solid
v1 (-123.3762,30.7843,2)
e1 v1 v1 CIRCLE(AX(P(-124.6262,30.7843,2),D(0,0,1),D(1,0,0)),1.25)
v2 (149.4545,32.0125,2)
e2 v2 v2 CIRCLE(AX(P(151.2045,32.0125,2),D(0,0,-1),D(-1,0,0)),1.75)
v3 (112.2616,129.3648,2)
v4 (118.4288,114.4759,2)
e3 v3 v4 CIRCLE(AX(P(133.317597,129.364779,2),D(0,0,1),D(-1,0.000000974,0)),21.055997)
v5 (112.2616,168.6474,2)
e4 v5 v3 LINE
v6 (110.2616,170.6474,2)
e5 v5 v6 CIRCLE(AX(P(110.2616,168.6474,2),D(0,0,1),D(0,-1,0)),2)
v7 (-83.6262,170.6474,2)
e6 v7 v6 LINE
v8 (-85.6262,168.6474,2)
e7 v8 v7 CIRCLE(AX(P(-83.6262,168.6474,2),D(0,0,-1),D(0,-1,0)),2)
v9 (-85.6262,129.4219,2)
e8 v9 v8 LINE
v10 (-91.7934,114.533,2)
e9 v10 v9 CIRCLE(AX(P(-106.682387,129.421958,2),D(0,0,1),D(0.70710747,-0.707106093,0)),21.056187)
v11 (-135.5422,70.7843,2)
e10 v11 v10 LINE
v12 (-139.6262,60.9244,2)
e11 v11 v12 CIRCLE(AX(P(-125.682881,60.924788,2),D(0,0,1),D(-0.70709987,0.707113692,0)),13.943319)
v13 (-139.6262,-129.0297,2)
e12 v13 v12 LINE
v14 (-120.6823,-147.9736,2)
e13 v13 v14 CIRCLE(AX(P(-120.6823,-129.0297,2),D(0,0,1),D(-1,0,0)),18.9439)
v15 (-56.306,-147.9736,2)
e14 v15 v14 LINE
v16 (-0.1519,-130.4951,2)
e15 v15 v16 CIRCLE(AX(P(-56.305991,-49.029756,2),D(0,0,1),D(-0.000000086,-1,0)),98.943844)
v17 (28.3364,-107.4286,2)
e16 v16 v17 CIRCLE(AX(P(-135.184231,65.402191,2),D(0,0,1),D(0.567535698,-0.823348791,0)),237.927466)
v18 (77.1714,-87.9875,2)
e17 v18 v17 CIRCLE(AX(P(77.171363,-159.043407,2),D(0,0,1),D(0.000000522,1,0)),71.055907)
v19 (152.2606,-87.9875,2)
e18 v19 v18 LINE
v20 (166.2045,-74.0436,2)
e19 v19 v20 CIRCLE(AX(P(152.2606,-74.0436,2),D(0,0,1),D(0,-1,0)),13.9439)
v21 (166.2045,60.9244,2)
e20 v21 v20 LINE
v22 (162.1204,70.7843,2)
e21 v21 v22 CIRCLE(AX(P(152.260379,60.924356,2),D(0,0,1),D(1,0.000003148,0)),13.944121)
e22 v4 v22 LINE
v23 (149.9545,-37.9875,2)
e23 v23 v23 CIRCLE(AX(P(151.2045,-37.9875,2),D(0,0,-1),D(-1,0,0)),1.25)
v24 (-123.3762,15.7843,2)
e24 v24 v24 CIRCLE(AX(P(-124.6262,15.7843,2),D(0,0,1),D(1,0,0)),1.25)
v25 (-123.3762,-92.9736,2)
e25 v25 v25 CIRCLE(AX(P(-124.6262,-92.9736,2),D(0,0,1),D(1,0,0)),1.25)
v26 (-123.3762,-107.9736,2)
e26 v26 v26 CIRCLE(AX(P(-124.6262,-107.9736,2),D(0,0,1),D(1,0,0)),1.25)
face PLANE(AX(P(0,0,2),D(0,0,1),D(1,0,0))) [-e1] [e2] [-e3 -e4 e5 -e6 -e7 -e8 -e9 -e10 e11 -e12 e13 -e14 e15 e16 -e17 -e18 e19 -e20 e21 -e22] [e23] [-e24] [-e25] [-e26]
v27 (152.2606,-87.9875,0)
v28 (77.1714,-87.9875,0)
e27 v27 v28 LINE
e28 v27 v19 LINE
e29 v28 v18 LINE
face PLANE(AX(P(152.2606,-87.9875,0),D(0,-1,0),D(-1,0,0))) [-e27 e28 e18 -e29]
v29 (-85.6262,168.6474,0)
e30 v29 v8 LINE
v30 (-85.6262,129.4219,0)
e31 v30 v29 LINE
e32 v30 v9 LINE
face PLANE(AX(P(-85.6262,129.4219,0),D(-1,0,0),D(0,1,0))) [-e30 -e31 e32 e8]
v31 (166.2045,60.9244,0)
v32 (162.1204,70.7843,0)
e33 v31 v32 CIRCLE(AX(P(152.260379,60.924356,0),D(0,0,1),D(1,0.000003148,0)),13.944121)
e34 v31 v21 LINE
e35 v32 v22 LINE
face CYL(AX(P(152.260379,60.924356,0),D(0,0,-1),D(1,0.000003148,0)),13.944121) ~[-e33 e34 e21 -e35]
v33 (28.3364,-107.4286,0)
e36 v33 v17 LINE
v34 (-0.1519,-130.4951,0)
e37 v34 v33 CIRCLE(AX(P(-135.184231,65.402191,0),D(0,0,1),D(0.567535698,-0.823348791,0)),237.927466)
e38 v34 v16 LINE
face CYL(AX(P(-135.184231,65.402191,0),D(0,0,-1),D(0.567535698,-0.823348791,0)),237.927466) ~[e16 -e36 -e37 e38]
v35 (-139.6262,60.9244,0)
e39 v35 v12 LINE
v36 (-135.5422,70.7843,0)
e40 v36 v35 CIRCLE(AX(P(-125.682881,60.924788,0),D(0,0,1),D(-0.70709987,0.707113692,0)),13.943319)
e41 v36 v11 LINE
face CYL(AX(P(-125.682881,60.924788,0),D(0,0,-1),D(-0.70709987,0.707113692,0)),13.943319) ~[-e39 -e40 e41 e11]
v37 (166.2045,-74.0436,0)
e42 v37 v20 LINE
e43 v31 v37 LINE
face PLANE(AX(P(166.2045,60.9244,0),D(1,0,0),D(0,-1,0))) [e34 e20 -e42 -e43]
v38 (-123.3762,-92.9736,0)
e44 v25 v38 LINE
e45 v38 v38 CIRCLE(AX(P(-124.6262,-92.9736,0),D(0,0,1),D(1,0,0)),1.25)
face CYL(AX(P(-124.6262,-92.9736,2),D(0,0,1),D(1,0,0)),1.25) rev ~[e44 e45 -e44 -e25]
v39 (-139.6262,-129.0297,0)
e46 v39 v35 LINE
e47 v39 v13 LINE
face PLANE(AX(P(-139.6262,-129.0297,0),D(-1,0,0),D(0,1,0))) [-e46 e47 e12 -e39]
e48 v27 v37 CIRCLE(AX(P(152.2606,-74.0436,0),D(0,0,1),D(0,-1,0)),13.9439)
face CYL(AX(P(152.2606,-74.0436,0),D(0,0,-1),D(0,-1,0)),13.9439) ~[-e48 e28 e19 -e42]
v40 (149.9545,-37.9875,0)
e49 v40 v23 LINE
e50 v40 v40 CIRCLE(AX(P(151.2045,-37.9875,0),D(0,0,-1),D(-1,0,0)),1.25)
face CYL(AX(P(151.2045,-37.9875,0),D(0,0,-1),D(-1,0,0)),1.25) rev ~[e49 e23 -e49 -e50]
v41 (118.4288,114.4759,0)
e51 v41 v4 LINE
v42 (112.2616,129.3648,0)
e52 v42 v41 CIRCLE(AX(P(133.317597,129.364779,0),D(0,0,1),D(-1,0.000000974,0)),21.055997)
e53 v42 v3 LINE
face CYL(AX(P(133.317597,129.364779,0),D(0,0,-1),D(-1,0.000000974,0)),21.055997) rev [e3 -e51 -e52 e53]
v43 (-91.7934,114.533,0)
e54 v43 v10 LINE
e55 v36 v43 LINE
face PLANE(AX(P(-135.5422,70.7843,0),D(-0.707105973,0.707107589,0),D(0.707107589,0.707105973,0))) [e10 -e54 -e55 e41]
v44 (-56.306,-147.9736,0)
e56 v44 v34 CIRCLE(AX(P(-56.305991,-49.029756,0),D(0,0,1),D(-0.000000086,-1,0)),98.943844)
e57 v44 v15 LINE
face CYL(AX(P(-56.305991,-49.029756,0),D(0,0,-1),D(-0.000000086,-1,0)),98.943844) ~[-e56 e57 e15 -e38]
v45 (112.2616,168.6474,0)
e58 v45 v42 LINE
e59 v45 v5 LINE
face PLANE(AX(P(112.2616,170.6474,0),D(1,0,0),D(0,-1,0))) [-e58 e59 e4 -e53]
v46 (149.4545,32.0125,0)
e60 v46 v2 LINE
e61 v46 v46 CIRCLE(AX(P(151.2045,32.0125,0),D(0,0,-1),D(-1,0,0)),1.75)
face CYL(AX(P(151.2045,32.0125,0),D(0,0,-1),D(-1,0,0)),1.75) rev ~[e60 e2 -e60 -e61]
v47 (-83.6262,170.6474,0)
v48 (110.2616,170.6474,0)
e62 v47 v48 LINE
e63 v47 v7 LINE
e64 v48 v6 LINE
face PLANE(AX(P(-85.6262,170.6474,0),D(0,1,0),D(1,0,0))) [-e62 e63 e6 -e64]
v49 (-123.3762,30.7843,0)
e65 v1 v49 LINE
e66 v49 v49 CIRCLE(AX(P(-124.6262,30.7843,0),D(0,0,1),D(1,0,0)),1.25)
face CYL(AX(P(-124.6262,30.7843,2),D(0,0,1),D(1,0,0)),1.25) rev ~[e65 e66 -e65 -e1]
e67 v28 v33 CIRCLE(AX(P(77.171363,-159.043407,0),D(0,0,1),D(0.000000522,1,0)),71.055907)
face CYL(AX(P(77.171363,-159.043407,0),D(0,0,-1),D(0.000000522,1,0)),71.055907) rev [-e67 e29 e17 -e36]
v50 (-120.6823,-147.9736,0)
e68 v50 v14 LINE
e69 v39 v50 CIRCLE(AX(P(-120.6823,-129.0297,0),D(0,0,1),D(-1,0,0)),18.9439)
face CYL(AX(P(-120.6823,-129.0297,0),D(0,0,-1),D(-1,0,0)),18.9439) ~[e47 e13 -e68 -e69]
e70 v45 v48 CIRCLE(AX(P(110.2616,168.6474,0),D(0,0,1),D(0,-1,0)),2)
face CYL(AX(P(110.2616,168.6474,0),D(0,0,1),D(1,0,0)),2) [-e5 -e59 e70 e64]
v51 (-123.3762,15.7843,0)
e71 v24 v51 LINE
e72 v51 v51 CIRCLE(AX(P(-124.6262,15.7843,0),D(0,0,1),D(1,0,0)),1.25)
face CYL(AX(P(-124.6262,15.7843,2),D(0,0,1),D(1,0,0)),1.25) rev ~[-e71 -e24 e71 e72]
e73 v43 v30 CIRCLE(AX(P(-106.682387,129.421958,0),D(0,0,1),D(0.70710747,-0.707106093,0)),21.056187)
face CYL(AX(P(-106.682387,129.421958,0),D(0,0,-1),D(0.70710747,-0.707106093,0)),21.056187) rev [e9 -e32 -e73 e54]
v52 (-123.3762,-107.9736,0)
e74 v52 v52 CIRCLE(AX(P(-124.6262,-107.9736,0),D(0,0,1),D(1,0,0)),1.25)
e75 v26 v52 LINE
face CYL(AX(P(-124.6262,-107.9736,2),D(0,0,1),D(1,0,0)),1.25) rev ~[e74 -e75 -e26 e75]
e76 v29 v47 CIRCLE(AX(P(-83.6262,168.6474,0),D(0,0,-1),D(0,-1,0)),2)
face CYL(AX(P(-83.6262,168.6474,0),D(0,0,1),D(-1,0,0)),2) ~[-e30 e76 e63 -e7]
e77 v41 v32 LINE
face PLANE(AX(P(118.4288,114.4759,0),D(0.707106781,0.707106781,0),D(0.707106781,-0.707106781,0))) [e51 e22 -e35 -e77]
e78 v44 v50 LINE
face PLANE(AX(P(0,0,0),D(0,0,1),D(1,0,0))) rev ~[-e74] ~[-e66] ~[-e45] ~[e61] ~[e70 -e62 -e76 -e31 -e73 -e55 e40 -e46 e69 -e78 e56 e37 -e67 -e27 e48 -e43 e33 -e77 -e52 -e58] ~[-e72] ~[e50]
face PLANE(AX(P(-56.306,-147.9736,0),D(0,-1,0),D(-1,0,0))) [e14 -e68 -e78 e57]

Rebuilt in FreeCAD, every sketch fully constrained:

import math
import FreeCAD as App
import Part
import Sketcher
from FreeCAD import Vector
Q = App.Units.Quantity


def edges_at(feature, points):
    """Names of the edges that pass closest to the given points."""
    edges = feature.Shape.Edges
    near = lambda p: min(range(len(edges)), key=lambda i: edges[i].distToShape(Part.Vertex(*p))[0])
    return sorted({f"Edge{near(p) + 1}" for p in points})

doc = App.newDocument("Part")
body = doc.addObject("PartDesign::Body", "Body")

sketch1 = doc.addObject("Sketcher::SketchObject", "Sketch")
body.addObject(sketch1)
sketch1.AttachmentSupport = (doc.XY_Plane, [""])
sketch1.MapMode = "FlatFace"
sketch1.addGeometry(Part.LineSegment(Vector(112.2616, 129.3648, 0), Vector(112.2616, 170.6474, 0)), False)
sketch1.addGeometry(Part.LineSegment(Vector(112.2616, 170.6474, 0), Vector(-85.6262, 170.6474, 0)), False)
sketch1.addGeometry(Part.LineSegment(Vector(-85.6262, 170.6474, 0), Vector(-85.6262, 129.4219, 0)), False)
sketch1.addGeometry(Part.ArcOfCircle(Part.Circle(Vector(-106.6823, 129.4219, 0), Vector(0, 0, 1), 21.056084), math.radians(-45), math.radians(0)), False)
sketch1.addGeometry(Part.LineSegment(Vector(-91.7934, 114.533, 0), Vector(-135.5422, 70.7843, 0)), False)
sketch1.addGeometry(Part.ArcOfCircle(Part.Circle(Vector(-125.6823, 60.9244, 0), Vector(0, 0, 1), 13.944004), math.radians(135), math.radians(180)), False)
sketch1.addGeometry(Part.LineSegment(Vector(-139.6262, 60.9244, 0), Vector(-139.6262, -129.0297, 0)), False)
sketch1.addGeometry(Part.ArcOfCircle(Part.Circle(Vector(-120.6823, -129.0297, 0), Vector(0, 0, 1), 18.9439), math.radians(180), math.radians(270)), False)
sketch1.addGeometry(Part.LineSegment(Vector(-120.6823, -147.9736, 0), Vector(-56.306, -147.9736, 0)), False)
sketch1.addGeometry(Part.ArcOfCircle(Part.Circle(Vector(-56.306, -49.0297, 0), Vector(0, 0, 1), 98.9439), math.radians(-90), math.radians(-55.421504)), False)
sketch1.addGeometry(Part.ArcOfCircle(Part.Circle(Vector(-135.184231, 65.402191, 0), Vector(0, 0, 1), 237.927466), math.radians(-55.421439), math.radians(-46.585534)), False)
sketch1.addGeometry(Part.ArcOfCircle(Part.Circle(Vector(77.1714, -159.0436, 0), Vector(0, 0, 1), 71.0561), math.radians(90), math.radians(133.414718)), False)
sketch1.addGeometry(Part.LineSegment(Vector(77.1714, -87.9875, 0), Vector(152.2606, -87.9875, 0)), False)
sketch1.addGeometry(Part.ArcOfCircle(Part.Circle(Vector(152.2606, -74.0436, 0), Vector(0, 0, 1), 13.9439), math.radians(-90), math.radians(0)), False)
sketch1.addGeometry(Part.LineSegment(Vector(166.2045, -74.0436, 0), Vector(166.2045, 60.9244, 0)), False)
sketch1.addGeometry(Part.ArcOfCircle(Part.Circle(Vector(152.2606, 60.9244, 0), Vector(0, 0, 1), 13.9439), math.radians(0), math.radians(45.000291)), False)
sketch1.addGeometry(Part.LineSegment(Vector(162.1204, 70.7843, 0), Vector(118.4288, 114.4759, 0)), False)
sketch1.addGeometry(Part.ArcOfCircle(Part.Circle(Vector(133.3177, 129.3648, 0), Vector(0, 0, 1), 21.0561), math.radians(180), math.radians(225)), False)
sketch1.addConstraint(Sketcher.Constraint("Coincident", 0, 2, 1, 1))
sketch1.addConstraint(Sketcher.Constraint("Coincident", 1, 2, 2, 1))
sketch1.addConstraint(Sketcher.Constraint("Tangent", 2, 2, 3, 2))
sketch1.addConstraint(Sketcher.Constraint("Tangent", 3, 1, 4, 1))
sketch1.addConstraint(Sketcher.Constraint("Tangent", 4, 2, 5, 1))
sketch1.addConstraint(Sketcher.Constraint("Tangent", 5, 2, 6, 1))
sketch1.addConstraint(Sketcher.Constraint("Tangent", 6, 2, 7, 1))
sketch1.addConstraint(Sketcher.Constraint("Tangent", 7, 2, 8, 1))
sketch1.addConstraint(Sketcher.Constraint("Tangent", 8, 2, 9, 1))
sketch1.addConstraint(Sketcher.Constraint("Tangent", 9, 2, 10, 1))
sketch1.addConstraint(Sketcher.Constraint("Tangent", 10, 2, 11, 2))
sketch1.addConstraint(Sketcher.Constraint("Tangent", 11, 1, 12, 1))
sketch1.addConstraint(Sketcher.Constraint("Tangent", 12, 2, 13, 1))
sketch1.addConstraint(Sketcher.Constraint("Tangent", 13, 2, 14, 1))
sketch1.addConstraint(Sketcher.Constraint("Tangent", 14, 2, 15, 1))
sketch1.addConstraint(Sketcher.Constraint("Tangent", 15, 2, 16, 1))
sketch1.addConstraint(Sketcher.Constraint("Tangent", 16, 2, 17, 2))
sketch1.addConstraint(Sketcher.Constraint("Tangent", 17, 1, 0, 1))
sketch1.addConstraint(Sketcher.Constraint("Vertical", 0))
sketch1.addConstraint(Sketcher.Constraint("Horizontal", 1))
sketch1.addConstraint(Sketcher.Constraint("Vertical", 2))
sketch1.addConstraint(Sketcher.Constraint("Vertical", 6))
sketch1.addConstraint(Sketcher.Constraint("Horizontal", 8))
sketch1.addConstraint(Sketcher.Constraint("Horizontal", 12))
sketch1.addConstraint(Sketcher.Constraint("Vertical", 14))
sketch1.addConstraint(Sketcher.Constraint("Equal", 5, 13))
sketch1.addConstraint(Sketcher.Constraint("Equal", 13, 15))
sketch1.addConstraint(Sketcher.Constraint("Equal", 3, 17))
sketch1.addConstraint(Sketcher.Constraint("Perpendicular", 4, 16))
sketch1.addConstraint(Sketcher.Constraint("Horizontal", 5, 3, 15, 3))
sketch1.addConstraint(Sketcher.Constraint("Horizontal", 4, 2, 15, 2))
sketch1.addConstraint(Sketcher.Constraint("Radius", 3, Q("21.056 mm")))
sketch1.addConstraint(Sketcher.Constraint("Radius", 5, Q("13.944 mm")))
sketch1.addConstraint(Sketcher.Constraint("Radius", 7, Q("18.944 mm")))
sketch1.addConstraint(Sketcher.Constraint("Radius", 9, Q("98.944 mm")))
sketch1.addConstraint(Sketcher.Constraint("Radius", 11, Q("71.056 mm")))
sketch1.addConstraint(Sketcher.Constraint("DistanceX", 5, 3, 3, 3, Q("19 mm")))
sketch1.addConstraint(Sketcher.Constraint("DistanceX", 3, 3, 17, 3, Q("240 mm")))
sketch1.addConstraint(Sketcher.Constraint("Radius", 10, Q("237.9275 mm")))
sketch1.addConstraint(Sketcher.Constraint("DistanceY", 6, 2, 6, 1, Q("189.954 mm")))
sketch1.addConstraint(Sketcher.Constraint("DistanceY", 14, 1, 14, 2, Q("134.968 mm")))
sketch1.addConstraint(Sketcher.Constraint("DistanceX", 8, 1, 8, 2, Q("64.3763 mm")))
sketch1.addConstraint(Sketcher.Constraint("DistanceX", 12, 1, 12, 2, Q("75.0892 mm")))
sketch1.addConstraint(Sketcher.Constraint("DistanceY", 0, 1, 0, 2, Q("41.2826 mm")))
sketch1.addConstraint(Sketcher.Constraint("DistanceY", 2, 2, 2, 1, Q("41.2255 mm")))
sketch1.addConstraint(Sketcher.Constraint("DistanceY", -1, 1, 3, 3, Q("129.422 mm")))
sketch1.addConstraint(Sketcher.Constraint("DistanceX", 9, 3, -1, 1, Q("56.306 mm")))
pad1 = doc.addObject("PartDesign::Pad", "Pad")
body.addObject(pad1)
pad1.Profile = sketch1
pad1.Length = 2
doc.recompute()

fillet = doc.addObject("PartDesign::Fillet", "Fillet")
body.addObject(fillet)
fillet.Base = (pad1, edges_at(pad1, [(-85.626, 170.647, 1), (112.262, 170.647, 1)]))
fillet.Radius = 2

sketch2 = doc.addObject("Sketcher::SketchObject", "Sketch001")
body.addObject(sketch2)
sketch2.AttachmentSupport = (doc.XY_Plane, [""])
sketch2.MapMode = "FlatFace"
sketch2.AttachmentOffset = App.Placement(Vector(0, 0, 2), App.Rotation())
sketch2.addGeometry(Part.Circle(Vector(-124.6262, 30.7843, 0), Vector(0, 0, 1), 1.25), False)
sketch2.addGeometry(Part.Circle(Vector(-124.6262, 15.7843, 0), Vector(0, 0, 1), 1.25), False)
sketch2.addGeometry(Part.Circle(Vector(-124.6262, -92.9736, 0), Vector(0, 0, 1), 1.25), False)
sketch2.addGeometry(Part.Circle(Vector(-124.6262, -107.9736, 0), Vector(0, 0, 1), 1.25), False)
sketch2.addConstraint(Sketcher.Constraint("Equal", 0, 1))
sketch2.addConstraint(Sketcher.Constraint("Equal", 1, 2))
sketch2.addConstraint(Sketcher.Constraint("Equal", 2, 3))
sketch2.addConstraint(Sketcher.Constraint("Vertical", 0, 3, 1, 3))
sketch2.addConstraint(Sketcher.Constraint("Vertical", 1, 3, 2, 3))
sketch2.addConstraint(Sketcher.Constraint("Vertical", 2, 3, 3, 3))
sketch2.addConstraint(Sketcher.Constraint("Diameter", 0, Q("2.5 mm")))
sketch2.addConstraint(Sketcher.Constraint("DistanceY", 1, 3, 0, 3, Q("15 mm")))
sketch2.addConstraint(Sketcher.Constraint("DistanceY", 3, 3, 2, 3, Q("15 mm")))
sketch2.addConstraint(Sketcher.Constraint("DistanceY", 2, 3, 1, 3, Q("108.758 mm")))
sketch2.addConstraint(Sketcher.Constraint("DistanceX", 0, 3, -1, 1, Q("124.6262 mm")))
sketch2.addConstraint(Sketcher.Constraint("DistanceY", -1, 1, 0, 3, Q("30.7843 mm")))
pocket1 = doc.addObject("PartDesign::Pocket", "Pocket")
body.addObject(pocket1)
pocket1.Profile = sketch2
pocket1.Length = 2

sketch3 = doc.addObject("Sketcher::SketchObject", "Sketch002")
body.addObject(sketch3)
sketch3.AttachmentSupport = (doc.XY_Plane, [""])
sketch3.MapMode = "FlatFace"
sketch3.addGeometry(Part.Circle(Vector(151.2045, 32.0125, 0), Vector(0, 0, 1), 1.75), False)
sketch3.addGeometry(Part.Circle(Vector(151.2045, -37.9875, 0), Vector(0, 0, 1), 1.25), False)
sketch3.addConstraint(Sketcher.Constraint("Vertical", 0, 3, 1, 3))
sketch3.addConstraint(Sketcher.Constraint("Diameter", 0, Q("3.5 mm")))
sketch3.addConstraint(Sketcher.Constraint("Diameter", 1, Q("2.5 mm")))
sketch3.addConstraint(Sketcher.Constraint("DistanceY", 1, 3, 0, 3, Q("70 mm")))
sketch3.addConstraint(Sketcher.Constraint("DistanceX", -1, 1, 0, 3, Q("151.2045 mm")))
sketch3.addConstraint(Sketcher.Constraint("DistanceY", -1, 1, 0, 3, Q("32.0125 mm")))
pocket2 = doc.addObject("PartDesign::Pocket", "Pocket001")
body.addObject(pocket2)
pocket2.Profile = sketch3
pocket2.Length = 2
pocket2.Reversed = True

doc.recompute()
